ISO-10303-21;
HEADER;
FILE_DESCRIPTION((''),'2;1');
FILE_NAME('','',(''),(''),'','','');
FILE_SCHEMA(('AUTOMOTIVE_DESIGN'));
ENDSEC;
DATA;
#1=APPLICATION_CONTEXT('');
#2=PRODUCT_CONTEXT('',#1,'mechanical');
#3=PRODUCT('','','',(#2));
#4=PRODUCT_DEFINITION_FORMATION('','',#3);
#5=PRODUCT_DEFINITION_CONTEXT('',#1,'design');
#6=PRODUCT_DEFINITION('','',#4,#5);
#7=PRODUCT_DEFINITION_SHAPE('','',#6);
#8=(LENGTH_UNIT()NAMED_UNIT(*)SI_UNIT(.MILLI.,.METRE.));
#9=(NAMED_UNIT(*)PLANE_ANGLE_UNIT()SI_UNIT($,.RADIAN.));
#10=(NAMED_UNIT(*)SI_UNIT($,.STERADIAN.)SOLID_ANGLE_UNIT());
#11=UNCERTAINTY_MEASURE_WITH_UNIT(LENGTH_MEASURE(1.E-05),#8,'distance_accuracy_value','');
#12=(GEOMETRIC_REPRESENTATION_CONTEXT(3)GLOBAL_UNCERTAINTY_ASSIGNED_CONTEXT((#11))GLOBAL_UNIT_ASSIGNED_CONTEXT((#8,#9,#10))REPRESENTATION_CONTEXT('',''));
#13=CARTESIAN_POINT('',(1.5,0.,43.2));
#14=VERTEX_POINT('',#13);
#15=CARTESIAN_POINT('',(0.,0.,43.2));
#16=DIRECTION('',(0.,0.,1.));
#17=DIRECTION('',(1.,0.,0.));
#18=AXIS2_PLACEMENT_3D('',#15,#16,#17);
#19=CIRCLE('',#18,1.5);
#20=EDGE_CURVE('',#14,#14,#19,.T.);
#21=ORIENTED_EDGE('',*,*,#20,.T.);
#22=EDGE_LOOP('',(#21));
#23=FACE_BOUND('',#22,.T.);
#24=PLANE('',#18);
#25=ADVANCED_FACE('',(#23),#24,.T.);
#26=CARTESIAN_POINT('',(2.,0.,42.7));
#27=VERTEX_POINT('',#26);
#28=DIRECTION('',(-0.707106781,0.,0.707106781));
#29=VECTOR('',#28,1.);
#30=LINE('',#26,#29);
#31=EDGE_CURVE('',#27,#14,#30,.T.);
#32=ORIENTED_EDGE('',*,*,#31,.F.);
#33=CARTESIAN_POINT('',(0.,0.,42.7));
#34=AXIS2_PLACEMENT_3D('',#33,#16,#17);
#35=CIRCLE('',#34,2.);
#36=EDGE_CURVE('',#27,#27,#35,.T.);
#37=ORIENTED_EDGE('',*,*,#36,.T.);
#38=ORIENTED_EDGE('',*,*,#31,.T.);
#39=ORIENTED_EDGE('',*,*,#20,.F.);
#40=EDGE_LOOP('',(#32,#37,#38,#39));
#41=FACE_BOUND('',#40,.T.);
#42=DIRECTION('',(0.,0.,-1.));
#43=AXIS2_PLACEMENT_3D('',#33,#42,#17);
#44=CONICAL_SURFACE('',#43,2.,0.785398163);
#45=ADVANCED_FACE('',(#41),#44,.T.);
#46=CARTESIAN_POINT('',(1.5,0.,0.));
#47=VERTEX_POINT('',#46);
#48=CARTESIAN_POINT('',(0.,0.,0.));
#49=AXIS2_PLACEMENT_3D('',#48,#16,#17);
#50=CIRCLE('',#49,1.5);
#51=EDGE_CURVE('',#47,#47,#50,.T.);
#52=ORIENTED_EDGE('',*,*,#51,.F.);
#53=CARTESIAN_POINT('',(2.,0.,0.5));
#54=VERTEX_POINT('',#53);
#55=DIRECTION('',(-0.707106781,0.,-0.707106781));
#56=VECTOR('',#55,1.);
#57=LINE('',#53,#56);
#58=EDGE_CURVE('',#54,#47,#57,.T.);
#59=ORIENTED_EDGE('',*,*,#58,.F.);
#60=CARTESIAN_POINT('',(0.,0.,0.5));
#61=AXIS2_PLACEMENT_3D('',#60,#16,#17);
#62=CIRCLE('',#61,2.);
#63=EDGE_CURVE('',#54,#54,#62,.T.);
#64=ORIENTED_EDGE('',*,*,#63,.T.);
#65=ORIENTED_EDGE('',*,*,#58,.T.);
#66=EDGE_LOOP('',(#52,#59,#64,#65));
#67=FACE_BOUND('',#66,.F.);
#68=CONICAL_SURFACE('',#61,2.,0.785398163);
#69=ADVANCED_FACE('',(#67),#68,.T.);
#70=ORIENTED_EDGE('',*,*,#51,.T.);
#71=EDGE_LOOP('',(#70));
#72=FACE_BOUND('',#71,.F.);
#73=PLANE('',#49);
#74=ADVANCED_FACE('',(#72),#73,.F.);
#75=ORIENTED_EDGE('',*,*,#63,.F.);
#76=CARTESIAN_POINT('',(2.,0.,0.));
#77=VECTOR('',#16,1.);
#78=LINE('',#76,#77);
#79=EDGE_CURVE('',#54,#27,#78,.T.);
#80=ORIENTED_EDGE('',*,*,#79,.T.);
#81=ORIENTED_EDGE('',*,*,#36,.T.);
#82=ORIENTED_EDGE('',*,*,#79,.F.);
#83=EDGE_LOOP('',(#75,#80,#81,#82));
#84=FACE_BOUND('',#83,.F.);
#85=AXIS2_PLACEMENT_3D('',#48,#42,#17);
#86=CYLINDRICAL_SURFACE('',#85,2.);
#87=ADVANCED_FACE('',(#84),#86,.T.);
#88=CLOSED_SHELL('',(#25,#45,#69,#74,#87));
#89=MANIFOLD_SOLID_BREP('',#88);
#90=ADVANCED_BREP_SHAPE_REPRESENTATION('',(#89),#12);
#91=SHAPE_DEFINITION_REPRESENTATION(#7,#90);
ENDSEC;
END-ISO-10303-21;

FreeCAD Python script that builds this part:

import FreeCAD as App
import Part
import Sketcher

V = App.Vector
Q = App.Units.Quantity


def edges_at(feature, points):
    """Names of the edges that pass closest to the given points."""
    edges = feature.Shape.Edges
    near = lambda p: min(range(len(edges)), key=lambda i: edges[i].distToShape(Part.Vertex(*p))[0])
    return sorted({f"Edge{near(p) + 1}" for p in points})

doc = App.newDocument("Part")
body = doc.addObject("PartDesign::Body", "Body")

# Sketch on XY plane
sketch1 = body.newObject("Sketcher::SketchObject", "Sketch")
sketch1.AttachmentSupport = (doc.getObject("XY_Plane"), [""])
sketch1.MapMode = "FlatFace"
sketch1.addGeometry(Part.Circle(V(0, 0, 0), V(0, 0, 1), 2), False)
sketch1.addConstraint([
    Sketcher.Constraint("Coincident", 0, 3, -1, 1),
    Sketcher.Constraint("Diameter", 0, Q("4 mm")),
])
pad1 = body.newObject("PartDesign::Pad", "Pad")
pad1.Profile = sketch1
pad1.Length = 43.2
doc.recompute()

chamfer = body.newObject("PartDesign::Chamfer", "Chamfer")
chamfer.Base = (pad1, edges_at(pad1, [(-2, 0, 0), (-2, 0, 43.2)]))
chamfer.Size = 0.5

doc.recompute()
